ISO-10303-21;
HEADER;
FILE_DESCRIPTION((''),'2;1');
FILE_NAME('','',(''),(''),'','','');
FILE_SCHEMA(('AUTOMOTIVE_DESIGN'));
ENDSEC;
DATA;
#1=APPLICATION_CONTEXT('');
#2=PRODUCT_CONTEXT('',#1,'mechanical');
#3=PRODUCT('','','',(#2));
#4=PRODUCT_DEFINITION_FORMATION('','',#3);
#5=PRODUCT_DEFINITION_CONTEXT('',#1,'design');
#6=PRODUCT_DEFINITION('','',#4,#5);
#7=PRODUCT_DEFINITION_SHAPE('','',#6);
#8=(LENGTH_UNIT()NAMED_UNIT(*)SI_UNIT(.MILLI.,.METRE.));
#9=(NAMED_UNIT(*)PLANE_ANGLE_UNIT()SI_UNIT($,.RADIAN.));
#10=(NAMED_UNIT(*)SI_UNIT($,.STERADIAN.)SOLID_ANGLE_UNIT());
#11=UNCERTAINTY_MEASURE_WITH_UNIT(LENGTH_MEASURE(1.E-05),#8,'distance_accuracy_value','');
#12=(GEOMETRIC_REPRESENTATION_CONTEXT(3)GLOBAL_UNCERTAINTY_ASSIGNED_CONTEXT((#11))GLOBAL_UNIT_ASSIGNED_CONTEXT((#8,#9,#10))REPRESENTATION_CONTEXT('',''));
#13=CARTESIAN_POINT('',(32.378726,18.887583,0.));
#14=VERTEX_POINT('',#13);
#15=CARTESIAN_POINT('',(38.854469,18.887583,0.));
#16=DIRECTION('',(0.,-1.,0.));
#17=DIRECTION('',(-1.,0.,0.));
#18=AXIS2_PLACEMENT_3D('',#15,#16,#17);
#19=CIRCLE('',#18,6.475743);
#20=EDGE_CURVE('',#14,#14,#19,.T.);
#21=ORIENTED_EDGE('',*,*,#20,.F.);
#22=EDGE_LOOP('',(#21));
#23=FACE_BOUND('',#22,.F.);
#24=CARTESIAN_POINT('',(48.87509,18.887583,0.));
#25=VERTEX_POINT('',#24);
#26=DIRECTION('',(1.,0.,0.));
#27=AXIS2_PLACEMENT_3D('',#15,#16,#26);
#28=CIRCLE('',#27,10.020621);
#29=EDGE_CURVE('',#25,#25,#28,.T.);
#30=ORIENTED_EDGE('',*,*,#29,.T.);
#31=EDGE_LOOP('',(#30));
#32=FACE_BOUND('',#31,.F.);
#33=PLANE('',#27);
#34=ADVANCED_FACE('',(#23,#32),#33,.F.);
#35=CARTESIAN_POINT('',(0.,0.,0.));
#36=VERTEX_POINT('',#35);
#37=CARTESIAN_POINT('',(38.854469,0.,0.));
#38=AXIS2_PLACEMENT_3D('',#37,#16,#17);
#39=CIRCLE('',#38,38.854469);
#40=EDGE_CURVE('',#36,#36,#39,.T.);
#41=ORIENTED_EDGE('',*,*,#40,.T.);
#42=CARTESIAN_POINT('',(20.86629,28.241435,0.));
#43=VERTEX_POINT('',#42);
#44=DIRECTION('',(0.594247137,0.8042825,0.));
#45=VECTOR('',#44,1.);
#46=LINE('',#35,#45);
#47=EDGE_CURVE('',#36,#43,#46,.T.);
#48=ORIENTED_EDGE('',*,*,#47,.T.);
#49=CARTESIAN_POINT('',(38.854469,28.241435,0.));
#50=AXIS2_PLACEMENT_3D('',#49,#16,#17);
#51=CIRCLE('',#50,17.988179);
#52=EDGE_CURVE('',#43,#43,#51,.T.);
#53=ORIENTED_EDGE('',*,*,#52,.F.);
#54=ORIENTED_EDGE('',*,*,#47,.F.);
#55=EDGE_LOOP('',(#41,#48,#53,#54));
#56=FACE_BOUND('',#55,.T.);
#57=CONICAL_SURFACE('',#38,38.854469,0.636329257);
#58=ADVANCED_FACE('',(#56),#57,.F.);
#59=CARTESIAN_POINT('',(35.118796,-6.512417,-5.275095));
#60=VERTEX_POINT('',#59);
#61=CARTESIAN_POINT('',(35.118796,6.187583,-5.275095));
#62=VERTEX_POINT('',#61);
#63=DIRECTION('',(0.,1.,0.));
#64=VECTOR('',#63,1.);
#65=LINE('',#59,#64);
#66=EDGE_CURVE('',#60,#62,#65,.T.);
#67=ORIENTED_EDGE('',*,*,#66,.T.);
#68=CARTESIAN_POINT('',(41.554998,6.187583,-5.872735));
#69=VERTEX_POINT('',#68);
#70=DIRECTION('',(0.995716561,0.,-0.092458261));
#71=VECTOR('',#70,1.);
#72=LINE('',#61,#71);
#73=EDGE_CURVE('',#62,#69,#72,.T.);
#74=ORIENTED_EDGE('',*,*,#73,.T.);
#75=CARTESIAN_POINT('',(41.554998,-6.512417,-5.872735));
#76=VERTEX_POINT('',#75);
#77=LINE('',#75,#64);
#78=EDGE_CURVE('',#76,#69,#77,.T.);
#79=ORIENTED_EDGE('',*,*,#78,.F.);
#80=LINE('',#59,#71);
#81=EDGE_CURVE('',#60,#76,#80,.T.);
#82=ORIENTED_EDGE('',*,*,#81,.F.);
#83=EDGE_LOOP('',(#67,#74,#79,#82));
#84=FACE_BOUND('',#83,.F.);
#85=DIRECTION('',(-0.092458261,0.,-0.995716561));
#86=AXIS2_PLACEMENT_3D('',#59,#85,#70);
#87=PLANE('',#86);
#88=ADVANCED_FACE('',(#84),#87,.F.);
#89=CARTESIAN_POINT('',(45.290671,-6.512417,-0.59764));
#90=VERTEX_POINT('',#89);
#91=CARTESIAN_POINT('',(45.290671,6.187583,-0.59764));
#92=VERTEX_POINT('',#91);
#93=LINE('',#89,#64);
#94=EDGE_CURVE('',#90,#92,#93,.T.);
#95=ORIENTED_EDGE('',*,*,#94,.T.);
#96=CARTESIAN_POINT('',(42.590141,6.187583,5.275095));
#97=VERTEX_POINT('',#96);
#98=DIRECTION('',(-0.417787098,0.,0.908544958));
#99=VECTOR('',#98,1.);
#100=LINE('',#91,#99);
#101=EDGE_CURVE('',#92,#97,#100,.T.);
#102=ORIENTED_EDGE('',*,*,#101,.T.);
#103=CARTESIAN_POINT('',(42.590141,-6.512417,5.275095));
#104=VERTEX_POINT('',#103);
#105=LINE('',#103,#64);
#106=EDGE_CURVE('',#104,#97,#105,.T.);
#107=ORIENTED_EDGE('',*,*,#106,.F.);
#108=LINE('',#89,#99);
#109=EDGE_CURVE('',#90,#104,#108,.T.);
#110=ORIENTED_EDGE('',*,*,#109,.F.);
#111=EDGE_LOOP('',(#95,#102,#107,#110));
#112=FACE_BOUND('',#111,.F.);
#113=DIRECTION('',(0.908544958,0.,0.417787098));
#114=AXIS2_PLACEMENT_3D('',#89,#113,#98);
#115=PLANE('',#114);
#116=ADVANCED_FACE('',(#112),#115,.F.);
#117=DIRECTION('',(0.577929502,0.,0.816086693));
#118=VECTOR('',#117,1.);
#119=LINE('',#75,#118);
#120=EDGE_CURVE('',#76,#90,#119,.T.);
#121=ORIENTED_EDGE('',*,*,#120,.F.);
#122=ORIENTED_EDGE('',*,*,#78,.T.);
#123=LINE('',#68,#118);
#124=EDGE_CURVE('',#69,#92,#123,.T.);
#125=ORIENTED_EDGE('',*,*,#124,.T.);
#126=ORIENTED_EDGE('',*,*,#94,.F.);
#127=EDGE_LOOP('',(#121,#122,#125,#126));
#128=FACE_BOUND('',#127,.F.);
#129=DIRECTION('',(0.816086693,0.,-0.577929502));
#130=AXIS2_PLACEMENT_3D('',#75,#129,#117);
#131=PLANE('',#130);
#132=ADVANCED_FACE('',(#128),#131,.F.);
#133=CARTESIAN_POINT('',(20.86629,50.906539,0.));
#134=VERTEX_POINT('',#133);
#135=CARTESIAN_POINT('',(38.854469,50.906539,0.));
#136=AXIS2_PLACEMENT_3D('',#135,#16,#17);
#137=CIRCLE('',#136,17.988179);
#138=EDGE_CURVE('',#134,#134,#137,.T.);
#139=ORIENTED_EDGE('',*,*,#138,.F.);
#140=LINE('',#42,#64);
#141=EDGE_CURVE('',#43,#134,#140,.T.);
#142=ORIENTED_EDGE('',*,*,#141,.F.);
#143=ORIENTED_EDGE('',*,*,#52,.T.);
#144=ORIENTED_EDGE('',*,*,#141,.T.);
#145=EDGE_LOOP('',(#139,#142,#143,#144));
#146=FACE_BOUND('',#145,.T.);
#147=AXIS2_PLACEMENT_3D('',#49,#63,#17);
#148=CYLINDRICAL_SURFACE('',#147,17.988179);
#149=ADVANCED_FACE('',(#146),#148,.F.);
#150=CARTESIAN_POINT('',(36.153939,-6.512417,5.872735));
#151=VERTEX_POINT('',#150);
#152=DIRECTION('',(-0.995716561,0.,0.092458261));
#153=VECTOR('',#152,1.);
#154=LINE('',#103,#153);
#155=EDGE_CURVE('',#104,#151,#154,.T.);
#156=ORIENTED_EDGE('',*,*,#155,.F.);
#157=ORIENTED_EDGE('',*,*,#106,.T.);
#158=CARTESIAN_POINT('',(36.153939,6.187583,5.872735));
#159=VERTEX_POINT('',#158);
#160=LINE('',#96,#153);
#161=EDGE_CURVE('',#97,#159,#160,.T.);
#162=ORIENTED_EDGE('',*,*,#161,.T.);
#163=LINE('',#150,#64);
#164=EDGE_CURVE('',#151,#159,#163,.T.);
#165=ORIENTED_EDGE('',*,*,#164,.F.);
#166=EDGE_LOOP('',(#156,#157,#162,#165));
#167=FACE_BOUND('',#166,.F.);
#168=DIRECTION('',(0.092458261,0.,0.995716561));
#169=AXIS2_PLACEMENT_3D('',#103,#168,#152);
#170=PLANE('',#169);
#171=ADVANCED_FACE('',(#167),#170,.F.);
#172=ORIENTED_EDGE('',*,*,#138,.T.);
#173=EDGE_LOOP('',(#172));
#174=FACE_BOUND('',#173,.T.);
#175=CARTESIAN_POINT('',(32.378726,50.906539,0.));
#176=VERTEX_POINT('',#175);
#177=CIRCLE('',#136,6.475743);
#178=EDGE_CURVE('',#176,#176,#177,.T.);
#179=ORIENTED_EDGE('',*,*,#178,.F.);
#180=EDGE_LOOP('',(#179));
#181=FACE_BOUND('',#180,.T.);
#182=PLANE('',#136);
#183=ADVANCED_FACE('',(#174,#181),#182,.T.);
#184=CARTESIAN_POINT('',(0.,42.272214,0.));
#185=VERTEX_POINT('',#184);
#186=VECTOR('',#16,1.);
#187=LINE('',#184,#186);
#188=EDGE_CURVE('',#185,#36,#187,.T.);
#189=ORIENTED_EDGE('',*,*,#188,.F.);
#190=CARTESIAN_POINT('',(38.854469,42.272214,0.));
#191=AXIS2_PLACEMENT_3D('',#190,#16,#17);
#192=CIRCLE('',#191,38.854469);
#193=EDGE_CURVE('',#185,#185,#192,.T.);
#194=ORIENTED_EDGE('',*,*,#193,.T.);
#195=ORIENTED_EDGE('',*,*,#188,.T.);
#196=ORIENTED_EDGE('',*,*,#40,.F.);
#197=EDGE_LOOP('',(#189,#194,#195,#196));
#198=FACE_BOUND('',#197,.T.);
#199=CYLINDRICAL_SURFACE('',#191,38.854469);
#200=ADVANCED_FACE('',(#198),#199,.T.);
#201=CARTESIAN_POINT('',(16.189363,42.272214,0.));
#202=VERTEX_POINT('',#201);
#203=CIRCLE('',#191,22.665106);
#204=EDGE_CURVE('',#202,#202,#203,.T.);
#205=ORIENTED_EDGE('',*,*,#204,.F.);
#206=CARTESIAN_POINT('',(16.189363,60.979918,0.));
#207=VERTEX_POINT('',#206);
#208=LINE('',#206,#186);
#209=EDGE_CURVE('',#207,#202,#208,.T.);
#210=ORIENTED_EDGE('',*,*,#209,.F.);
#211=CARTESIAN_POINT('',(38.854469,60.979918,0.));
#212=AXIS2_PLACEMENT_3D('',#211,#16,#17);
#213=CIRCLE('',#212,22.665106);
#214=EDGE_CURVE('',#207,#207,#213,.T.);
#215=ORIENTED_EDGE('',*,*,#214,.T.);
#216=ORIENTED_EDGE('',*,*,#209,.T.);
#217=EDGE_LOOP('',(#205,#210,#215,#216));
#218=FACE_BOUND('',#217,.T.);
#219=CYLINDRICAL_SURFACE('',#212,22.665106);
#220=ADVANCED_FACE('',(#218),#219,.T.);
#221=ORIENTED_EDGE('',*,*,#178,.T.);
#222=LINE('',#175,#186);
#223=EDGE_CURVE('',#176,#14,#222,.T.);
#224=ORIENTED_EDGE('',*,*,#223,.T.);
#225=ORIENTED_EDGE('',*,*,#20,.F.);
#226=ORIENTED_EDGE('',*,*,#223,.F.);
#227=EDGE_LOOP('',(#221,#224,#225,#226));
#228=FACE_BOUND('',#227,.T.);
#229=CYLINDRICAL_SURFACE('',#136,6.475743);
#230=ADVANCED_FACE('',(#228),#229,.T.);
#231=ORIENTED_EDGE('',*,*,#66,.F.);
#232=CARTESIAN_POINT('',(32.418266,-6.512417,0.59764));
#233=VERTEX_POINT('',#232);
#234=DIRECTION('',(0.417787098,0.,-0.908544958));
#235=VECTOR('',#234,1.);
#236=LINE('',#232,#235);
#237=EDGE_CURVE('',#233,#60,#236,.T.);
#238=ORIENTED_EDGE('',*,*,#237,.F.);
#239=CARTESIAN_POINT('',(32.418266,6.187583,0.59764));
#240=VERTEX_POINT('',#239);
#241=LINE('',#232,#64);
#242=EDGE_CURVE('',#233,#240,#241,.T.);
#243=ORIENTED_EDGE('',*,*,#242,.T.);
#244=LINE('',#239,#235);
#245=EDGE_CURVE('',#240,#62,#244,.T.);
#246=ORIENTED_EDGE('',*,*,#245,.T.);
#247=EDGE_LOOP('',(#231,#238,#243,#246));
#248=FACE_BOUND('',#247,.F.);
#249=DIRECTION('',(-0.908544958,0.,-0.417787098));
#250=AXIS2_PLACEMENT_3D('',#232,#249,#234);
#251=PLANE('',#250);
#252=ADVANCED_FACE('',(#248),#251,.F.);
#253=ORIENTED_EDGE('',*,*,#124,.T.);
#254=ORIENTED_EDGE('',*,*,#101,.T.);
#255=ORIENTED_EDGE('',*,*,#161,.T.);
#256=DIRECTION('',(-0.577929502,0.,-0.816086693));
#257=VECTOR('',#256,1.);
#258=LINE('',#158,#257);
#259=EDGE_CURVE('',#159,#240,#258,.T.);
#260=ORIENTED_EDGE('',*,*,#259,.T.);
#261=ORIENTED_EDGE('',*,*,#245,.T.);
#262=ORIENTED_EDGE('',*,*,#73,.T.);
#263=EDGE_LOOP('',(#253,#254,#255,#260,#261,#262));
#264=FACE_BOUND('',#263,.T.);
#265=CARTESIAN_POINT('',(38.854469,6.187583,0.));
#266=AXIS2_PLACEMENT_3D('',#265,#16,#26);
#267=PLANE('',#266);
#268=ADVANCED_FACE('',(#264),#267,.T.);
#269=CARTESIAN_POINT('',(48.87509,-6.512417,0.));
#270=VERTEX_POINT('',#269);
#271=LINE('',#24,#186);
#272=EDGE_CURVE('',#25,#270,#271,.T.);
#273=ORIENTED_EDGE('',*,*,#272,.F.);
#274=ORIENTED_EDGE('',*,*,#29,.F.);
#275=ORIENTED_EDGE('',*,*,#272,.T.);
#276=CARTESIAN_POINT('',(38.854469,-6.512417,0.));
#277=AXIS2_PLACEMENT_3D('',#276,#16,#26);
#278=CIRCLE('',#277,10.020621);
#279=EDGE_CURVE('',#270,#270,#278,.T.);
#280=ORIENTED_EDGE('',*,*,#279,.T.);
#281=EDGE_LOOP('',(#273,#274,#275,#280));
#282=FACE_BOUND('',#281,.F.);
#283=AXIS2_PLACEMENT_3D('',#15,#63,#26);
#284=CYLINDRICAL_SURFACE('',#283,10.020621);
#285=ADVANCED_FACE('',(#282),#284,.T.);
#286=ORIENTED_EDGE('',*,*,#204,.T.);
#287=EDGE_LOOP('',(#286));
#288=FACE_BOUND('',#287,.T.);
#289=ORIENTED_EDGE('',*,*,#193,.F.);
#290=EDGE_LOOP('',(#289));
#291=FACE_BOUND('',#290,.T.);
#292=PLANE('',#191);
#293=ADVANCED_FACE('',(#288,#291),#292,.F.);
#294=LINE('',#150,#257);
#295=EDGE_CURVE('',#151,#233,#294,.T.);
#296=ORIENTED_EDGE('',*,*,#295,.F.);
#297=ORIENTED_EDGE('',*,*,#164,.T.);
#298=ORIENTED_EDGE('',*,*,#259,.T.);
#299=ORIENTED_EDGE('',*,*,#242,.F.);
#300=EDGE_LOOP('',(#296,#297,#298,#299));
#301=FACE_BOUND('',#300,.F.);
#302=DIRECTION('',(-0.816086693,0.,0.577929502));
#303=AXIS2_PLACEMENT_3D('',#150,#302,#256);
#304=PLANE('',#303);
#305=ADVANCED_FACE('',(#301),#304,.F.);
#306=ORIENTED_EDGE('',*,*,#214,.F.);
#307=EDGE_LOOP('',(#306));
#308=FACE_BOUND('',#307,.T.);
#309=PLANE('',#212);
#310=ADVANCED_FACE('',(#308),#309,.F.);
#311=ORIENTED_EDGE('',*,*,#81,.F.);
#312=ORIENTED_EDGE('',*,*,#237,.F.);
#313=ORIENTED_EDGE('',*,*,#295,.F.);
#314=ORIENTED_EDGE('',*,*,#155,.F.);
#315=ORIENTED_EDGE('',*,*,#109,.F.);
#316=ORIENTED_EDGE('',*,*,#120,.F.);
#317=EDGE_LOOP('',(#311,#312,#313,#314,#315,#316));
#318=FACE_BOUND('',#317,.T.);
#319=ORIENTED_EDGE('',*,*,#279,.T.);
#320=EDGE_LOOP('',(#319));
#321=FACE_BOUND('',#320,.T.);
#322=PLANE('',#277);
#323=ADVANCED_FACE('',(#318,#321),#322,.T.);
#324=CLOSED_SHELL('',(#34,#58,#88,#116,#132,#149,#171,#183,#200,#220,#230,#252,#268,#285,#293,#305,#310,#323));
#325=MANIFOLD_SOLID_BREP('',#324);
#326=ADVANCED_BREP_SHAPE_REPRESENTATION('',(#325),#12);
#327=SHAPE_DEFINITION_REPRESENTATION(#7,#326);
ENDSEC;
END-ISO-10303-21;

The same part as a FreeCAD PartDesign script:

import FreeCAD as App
import Part
import Sketcher

V = App.Vector
Q = App.Units.Quantity


def add_polygon(sketch, points):
    """Adds a closed chain of lines whose ends are joined by coincident constraints."""
    first, n = sketch.GeometryCount, len(points)
    for a, b in zip(points, points[1:] + points[:1]):
        sketch.addGeometry(Part.LineSegment(App.Vector(*a, 0), App.Vector(*b, 0)), False)
    for i in range(n):
        sketch.addConstraint(Sketcher.Constraint("Coincident", first + i, 2, first + (i + 1) % n, 1))

doc = App.newDocument("Part")
body = doc.addObject("PartDesign::Body", "Body")

# Sketch on XY plane
sketch1 = body.newObject("Sketcher::SketchObject", "Sketch")
sketch1.AttachmentSupport = (doc.getObject("XY_Plane"), [""])
sketch1.MapMode = "FlatFace"
add_polygon(sketch1, [(0, 42), (0, 0), (21, 28), (21, 51), (32, 51), (32, 19), (39, 19), (39, 61), (16, 61), (16, 42)])  # lines 0-9
sketch1.addGeometry(Part.LineSegment(V(39, 61, 0), V(39, 0, 0)), True)  # axis
sketch1.addConstraint(Sketcher.Constraint("Vertical", 0))
sketch1.addConstraint(Sketcher.Constraint("Vertical", 2))
sketch1.addConstraint(Sketcher.Constraint("Horizontal", 3))
sketch1.addConstraint(Sketcher.Constraint("Vertical", 4))
sketch1.addConstraint(Sketcher.Constraint("Horizontal", 5))
sketch1.addConstraint(Sketcher.Constraint("Vertical", 6))
sketch1.addConstraint(Sketcher.Constraint("Horizontal", 7))
sketch1.addConstraint(Sketcher.Constraint("Vertical", 8))
sketch1.addConstraint(Sketcher.Constraint("Horizontal", 9))
sketch1.addConstraint(Sketcher.Constraint("Vertical", 10))
sketch1.addConstraint(Sketcher.Constraint("Coincident", 0, 2, -1, 1))
sketch1.addConstraint(Sketcher.Constraint("Coincident", 10, 1, 6, 2))
sketch1.addConstraint(Sketcher.Constraint("PointOnObject", 10, 2, -1))
sketch1.addConstraint(Sketcher.Constraint("Equal", 7, 2))
sketch1.addConstraint(Sketcher.Constraint("DistanceX", 3, 1, 3, 2, 11.512436))
sketch1.addConstraint(Sketcher.Constraint("DistanceX", 5, 1, 5, 2, 6.475743))
sketch1.addConstraint(Sketcher.Constraint("DistanceX", 7, 2, 7, 1, 22.665106))
sketch1.addConstraint(Sketcher.Constraint("DistanceX", 9, 2, 9, 1, 16.189363))
sketch1.addConstraint(Sketcher.Constraint("DistanceY", 0, 2, 0, 1, 42.272214))
sketch1.addConstraint(Sketcher.Constraint("DistanceY", 4, 2, 4, 1, 32.018956))
sketch1.addConstraint(Sketcher.Constraint("DistanceY", 6, 1, 6, 2, 42.092335))
sketch1.addConstraint(Sketcher.Constraint("DistanceY", 8, 2, 8, 1, 18.707704))
revolution = body.newObject("PartDesign::Revolution", "Revolution")
revolution.Profile = sketch1
revolution.ReferenceAxis = (sketch1, ["Axis0"])
revolution.Angle = 360

# Sketch on XZ plane
sketch2 = body.newObject("Sketcher::SketchObject", "Sketch001")
sketch2.AttachmentSupport = (doc.getObject("XZ_Plane"), [""])
sketch2.MapMode = "FlatFace"
sketch2.AttachmentOffset = App.Placement(V(0, 0, -18.887583), App.Rotation())
sketch2.addGeometry(Part.Circle(V(39, 0, 0), V(0, 0, 1), 10), False)
sketch2.addConstraint(Sketcher.Constraint("PointOnObject", 0, 3, -1))
sketch2.addConstraint(Sketcher.Constraint("Diameter", 0, 20.041242))
sketch2.addConstraint(Sketcher.Constraint("DistanceX", -1, 1, 0, 3, 38.854469))
pad1 = body.newObject("PartDesign::Pad", "Pad")
pad1.Profile = sketch2
pad1.Length = Q("1 in")

# Sketch on XZ plane
sketch3 = body.newObject("Sketcher::SketchObject", "Sketch002")
sketch3.AttachmentSupport = (doc.getObject("XZ_Plane"), [""])
sketch3.MapMode = "FlatFace"
sketch3.AttachmentOffset = App.Placement(V(0, 0, 6.512417), App.Rotation())
add_polygon(sketch3, [(32, 1), (35, -5), (42, -6), (45, -1), (43, 5), (36, 6)])  # lines 0-5
sketch3.addConstraint(Sketcher.Constraint("Parallel", 0, 3))
sketch3.addConstraint(Sketcher.Constraint("Parallel", 1, 4))
sketch3.addConstraint(Sketcher.Constraint("Parallel", 2, 5))
sketch3.addConstraint(Sketcher.Constraint("Equal", 0, 1))
sketch3.addConstraint(Sketcher.Constraint("Equal", 1, 2))
sketch3.addConstraint(Sketcher.Constraint("Equal", 2, 3))
sketch3.addConstraint(Sketcher.Constraint("DistanceX", 0, 2, 1, 2, 6.436202))
sketch3.addConstraint(Sketcher.Constraint("Distance", 0, 6.46389))
sketch3.addConstraint(Sketcher.Constraint("DistanceX", -1, 1, 2, 2, 45.290671))
sketch3.addConstraint(Sketcher.Constraint("DistanceY", 2, 2, -1, 1, 0.59764))
sketch3.addConstraint(Sketcher.Constraint("DistanceX", -1, 1, 3, 2, 42.590141))
sketch3.addConstraint(Sketcher.Constraint("DistanceY", -1, 1, 5, 2, 0.59764))
pocket1 = body.newObject("PartDesign::Pocket", "Pocket")
pocket1.Profile = sketch3
pocket1.Length = Q("0.5 in")

doc.recompute()
